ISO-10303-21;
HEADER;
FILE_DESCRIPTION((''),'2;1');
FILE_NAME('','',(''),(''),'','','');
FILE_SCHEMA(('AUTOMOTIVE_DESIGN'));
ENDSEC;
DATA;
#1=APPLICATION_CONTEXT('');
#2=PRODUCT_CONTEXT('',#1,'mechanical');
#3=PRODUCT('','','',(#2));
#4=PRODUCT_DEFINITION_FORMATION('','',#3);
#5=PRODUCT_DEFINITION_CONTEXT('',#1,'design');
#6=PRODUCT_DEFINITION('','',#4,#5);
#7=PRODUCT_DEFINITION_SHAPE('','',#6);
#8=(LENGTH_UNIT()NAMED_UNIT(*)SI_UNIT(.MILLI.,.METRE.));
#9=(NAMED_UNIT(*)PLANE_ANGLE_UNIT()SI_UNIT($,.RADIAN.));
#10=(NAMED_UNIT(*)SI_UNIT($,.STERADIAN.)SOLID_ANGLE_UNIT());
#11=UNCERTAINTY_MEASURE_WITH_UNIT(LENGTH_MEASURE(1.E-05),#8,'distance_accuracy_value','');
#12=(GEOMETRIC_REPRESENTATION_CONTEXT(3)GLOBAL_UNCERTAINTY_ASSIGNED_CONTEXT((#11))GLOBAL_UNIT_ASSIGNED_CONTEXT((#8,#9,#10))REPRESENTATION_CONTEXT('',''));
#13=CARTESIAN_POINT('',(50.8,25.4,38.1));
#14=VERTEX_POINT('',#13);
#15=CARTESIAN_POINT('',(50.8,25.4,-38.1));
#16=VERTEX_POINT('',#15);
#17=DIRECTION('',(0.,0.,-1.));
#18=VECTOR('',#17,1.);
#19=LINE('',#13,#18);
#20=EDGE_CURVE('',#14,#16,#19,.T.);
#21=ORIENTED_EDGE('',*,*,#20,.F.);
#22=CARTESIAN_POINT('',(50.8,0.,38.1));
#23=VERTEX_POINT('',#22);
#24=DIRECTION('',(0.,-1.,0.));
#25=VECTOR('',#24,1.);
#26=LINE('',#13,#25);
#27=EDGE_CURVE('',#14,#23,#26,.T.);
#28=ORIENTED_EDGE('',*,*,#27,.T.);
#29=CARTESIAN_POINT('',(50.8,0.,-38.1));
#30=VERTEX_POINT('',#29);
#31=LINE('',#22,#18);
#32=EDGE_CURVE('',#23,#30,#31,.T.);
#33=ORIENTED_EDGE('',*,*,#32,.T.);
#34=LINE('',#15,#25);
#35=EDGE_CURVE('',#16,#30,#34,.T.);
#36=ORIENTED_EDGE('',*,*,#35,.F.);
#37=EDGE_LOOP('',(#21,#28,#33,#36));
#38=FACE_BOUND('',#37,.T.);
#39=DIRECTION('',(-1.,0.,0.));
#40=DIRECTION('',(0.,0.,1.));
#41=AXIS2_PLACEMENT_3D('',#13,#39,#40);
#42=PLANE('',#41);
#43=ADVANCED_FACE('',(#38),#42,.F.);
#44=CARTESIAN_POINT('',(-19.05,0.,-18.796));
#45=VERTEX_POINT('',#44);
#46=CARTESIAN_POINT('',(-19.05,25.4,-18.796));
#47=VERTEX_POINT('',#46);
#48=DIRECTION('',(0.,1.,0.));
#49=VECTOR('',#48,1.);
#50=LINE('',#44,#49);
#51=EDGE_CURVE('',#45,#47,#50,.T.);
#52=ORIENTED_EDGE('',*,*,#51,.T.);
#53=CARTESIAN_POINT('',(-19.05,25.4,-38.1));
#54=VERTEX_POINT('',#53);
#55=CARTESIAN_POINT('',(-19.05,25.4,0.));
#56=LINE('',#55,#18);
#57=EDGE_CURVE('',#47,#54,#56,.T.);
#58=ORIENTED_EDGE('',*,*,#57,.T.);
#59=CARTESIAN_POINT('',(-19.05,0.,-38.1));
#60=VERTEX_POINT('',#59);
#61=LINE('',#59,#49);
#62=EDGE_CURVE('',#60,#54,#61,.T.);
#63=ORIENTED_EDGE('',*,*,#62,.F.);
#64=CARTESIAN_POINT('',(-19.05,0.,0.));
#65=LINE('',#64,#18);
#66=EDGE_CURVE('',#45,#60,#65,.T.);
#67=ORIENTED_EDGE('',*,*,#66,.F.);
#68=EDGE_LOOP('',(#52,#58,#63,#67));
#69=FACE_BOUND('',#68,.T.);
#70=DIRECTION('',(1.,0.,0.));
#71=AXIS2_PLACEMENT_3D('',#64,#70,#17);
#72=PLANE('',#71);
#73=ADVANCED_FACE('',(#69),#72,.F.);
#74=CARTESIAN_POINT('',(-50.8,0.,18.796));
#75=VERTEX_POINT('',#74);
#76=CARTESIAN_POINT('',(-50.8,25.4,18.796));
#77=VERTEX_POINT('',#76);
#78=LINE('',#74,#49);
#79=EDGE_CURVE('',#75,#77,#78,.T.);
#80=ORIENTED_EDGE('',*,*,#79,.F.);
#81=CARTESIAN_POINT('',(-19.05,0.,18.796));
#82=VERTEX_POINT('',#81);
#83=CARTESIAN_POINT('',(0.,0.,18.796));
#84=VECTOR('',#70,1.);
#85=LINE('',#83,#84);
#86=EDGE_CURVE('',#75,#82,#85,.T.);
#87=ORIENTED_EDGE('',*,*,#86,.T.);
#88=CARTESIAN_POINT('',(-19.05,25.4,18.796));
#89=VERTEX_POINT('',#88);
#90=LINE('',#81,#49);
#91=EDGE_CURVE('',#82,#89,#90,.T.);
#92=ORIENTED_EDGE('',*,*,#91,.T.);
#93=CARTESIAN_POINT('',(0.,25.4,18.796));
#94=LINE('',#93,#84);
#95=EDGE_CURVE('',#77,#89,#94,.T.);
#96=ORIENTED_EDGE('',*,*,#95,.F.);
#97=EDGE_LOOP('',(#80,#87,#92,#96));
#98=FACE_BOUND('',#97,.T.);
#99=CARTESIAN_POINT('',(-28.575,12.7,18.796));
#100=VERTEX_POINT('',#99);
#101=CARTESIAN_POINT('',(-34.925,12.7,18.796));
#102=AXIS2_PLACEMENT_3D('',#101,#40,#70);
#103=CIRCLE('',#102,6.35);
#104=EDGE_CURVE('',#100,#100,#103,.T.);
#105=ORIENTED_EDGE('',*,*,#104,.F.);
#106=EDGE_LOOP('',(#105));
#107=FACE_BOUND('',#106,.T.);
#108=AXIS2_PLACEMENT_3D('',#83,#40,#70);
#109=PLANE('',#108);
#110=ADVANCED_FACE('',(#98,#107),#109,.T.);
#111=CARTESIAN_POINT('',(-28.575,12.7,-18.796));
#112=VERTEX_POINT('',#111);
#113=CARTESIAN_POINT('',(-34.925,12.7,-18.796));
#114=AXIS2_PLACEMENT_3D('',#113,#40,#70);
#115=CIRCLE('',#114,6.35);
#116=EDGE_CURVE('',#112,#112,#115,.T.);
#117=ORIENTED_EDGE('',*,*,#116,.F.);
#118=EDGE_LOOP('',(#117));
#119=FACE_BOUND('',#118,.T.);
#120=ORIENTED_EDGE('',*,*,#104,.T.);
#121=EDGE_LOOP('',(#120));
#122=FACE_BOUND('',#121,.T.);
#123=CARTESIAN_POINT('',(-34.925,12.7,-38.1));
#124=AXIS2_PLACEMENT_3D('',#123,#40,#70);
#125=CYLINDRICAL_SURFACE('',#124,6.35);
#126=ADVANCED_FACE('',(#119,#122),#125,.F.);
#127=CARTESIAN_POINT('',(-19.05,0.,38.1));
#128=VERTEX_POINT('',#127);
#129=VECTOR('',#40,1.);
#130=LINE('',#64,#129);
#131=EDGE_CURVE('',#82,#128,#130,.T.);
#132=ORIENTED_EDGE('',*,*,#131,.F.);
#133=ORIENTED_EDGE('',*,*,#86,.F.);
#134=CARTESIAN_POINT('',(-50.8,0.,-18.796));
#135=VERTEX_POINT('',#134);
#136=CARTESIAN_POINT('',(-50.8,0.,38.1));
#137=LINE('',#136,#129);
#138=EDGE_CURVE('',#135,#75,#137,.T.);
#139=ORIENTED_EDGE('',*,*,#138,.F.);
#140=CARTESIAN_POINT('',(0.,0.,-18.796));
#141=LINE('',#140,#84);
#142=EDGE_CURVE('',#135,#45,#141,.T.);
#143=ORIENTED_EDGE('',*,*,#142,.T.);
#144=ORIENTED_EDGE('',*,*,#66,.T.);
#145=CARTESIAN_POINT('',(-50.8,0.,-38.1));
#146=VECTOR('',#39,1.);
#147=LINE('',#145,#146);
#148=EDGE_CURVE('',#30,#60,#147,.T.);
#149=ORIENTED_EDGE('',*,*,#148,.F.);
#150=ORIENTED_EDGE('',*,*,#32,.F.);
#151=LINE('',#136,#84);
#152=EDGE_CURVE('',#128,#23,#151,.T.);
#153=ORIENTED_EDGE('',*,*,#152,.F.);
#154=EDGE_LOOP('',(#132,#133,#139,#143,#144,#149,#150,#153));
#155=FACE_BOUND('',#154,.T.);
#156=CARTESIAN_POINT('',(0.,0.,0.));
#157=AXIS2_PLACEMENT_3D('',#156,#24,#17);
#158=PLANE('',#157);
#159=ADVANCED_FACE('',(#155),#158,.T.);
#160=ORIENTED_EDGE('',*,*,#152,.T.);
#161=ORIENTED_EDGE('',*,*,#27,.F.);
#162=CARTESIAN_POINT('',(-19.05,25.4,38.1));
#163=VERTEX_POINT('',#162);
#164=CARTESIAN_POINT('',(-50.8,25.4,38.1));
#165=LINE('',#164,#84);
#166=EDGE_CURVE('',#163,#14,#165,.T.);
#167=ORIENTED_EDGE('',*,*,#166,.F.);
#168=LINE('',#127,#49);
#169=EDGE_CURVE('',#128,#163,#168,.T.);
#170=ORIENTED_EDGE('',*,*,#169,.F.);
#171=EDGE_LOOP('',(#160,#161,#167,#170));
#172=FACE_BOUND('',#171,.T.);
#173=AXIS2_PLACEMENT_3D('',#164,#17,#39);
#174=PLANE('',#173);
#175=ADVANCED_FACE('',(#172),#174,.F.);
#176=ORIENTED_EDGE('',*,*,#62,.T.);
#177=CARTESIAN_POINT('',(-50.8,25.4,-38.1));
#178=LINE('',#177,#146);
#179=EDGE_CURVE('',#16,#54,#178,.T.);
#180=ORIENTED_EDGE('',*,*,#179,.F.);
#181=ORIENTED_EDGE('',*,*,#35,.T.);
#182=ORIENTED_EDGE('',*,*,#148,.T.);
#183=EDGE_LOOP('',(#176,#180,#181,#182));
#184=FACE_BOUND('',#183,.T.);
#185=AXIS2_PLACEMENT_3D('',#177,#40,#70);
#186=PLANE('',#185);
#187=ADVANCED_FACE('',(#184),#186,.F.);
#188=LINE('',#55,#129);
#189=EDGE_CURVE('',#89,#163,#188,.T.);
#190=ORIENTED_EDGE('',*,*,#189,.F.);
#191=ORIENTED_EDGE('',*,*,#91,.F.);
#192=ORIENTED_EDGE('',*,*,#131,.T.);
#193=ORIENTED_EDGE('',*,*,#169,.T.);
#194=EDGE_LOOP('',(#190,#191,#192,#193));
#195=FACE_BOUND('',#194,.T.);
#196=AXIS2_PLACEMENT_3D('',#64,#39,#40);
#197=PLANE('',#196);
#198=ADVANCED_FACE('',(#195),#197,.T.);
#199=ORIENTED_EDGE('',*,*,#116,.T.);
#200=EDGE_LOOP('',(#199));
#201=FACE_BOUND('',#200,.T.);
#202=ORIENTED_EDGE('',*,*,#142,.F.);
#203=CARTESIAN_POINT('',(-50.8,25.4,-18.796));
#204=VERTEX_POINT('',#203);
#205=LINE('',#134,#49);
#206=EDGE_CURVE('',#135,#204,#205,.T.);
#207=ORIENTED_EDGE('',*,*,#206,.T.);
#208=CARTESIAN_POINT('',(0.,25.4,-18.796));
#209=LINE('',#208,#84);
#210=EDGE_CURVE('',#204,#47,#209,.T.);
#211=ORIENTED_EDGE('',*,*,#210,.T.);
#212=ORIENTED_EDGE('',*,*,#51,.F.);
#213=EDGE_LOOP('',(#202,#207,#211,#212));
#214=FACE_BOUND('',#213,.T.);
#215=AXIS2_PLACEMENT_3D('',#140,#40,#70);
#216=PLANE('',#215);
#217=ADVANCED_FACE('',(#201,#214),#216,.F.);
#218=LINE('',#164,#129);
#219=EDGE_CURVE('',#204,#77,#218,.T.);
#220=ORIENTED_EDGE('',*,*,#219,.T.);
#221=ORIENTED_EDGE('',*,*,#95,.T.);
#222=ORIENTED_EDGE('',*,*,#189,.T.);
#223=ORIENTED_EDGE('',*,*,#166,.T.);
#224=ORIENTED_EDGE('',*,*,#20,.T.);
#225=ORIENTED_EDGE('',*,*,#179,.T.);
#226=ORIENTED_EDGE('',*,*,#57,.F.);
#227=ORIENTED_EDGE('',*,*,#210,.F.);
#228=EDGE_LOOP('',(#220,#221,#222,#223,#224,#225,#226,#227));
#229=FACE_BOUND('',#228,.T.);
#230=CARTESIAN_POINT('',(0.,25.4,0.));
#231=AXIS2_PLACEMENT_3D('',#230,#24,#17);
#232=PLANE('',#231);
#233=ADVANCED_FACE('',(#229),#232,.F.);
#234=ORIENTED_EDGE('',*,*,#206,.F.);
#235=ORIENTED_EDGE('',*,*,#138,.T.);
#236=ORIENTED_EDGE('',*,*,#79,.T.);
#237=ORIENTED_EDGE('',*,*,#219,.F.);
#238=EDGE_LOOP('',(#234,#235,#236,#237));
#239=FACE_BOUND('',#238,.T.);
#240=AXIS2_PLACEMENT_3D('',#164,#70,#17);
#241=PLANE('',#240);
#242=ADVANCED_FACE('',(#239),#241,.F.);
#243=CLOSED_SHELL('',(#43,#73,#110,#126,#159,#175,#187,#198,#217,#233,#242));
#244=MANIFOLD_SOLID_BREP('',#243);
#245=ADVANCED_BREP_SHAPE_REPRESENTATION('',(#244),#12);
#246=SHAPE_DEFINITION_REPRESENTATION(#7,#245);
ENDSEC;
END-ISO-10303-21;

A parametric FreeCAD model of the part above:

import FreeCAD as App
import Part
import Sketcher

V = App.Vector
Q = App.Units.Quantity


def add_polygon(sketch, points):
    """Adds a closed chain of lines whose ends are joined by coincident constraints."""
    first, n = sketch.GeometryCount, len(points)
    for a, b in zip(points, points[1:] + points[:1]):
        sketch.addGeometry(Part.LineSegment(App.Vector(*a, 0), App.Vector(*b, 0)), False)
    for i in range(n):
        sketch.addConstraint(Sketcher.Constraint("Coincident", first + i, 2, first + (i + 1) % n, 1))

doc = App.newDocument("Part")
body = doc.addObject("PartDesign::Body", "Body")

# Sketch on XZ plane
sketch1 = body.newObject("Sketcher::SketchObject", "Sketch")
sketch1.AttachmentSupport = (doc.getObject("XZ_Plane"), [""])
sketch1.MapMode = "FlatFace"
add_polygon(sketch1, [(-51, -38), (-51, 38), (51, 38), (51, -38)])  # lines 0-3
sketch1.addConstraint([
    Sketcher.Constraint("Vertical", 0),
    Sketcher.Constraint("Horizontal", 1),
    Sketcher.Constraint("Vertical", 2),
    Sketcher.Constraint("Horizontal", 3),
    Sketcher.Constraint("Symmetric", 0, 2, 2, 2, -1, 1),
    Sketcher.Constraint("DistanceX", 1, 1, 1, 2, Q("4 in")),
    Sketcher.Constraint("DistanceY", 0, 1, 0, 2, Q("3 in")),
])
pad1 = body.newObject("PartDesign::Pad", "Pad")
pad1.Profile = sketch1
pad1.Length = Q("1 in")
pad1.Reversed = True

# Sketch on XZ plane
sketch2 = body.newObject("Sketcher::SketchObject", "Sketch001")
sketch2.AttachmentSupport = (doc.getObject("XZ_Plane"), [""])
sketch2.MapMode = "FlatFace"
sketch2.AttachmentOffset = App.Placement(V(0, 0, -1 * 25.4), App.Rotation())
add_polygon(sketch2, [(-51, -38), (-51, -19), (-19, -19), (-19, -38)])  # lines 0-3
add_polygon(sketch2, [(-51, 19), (-51, 38), (-19, 38), (-19, 19)])  # lines 4-7
sketch2.addConstraint([
    Sketcher.Constraint("Vertical", 0),
    Sketcher.Constraint("Horizontal", 1),
    Sketcher.Constraint("Vertical", 2),
    Sketcher.Constraint("Horizontal", 3),
    Sketcher.Constraint("Vertical", 4),
    Sketcher.Constraint("Horizontal", 5),
    Sketcher.Constraint("Vertical", 6),
    Sketcher.Constraint("Horizontal", 7),
    Sketcher.Constraint("Symmetric", 3, 2, 4, 2, -1),
    Sketcher.Constraint("Symmetric", 1, 2, 6, 2, -1),
    Sketcher.Constraint("DistanceX", 0, 2, -1, 1, Q("2 in")),
    Sketcher.Constraint("DistanceY", 3, 2, 4, 2, Q("3 in")),
    Sketcher.Constraint("DistanceX", 1, 1, 1, 2, Q("1.25 in")),
    Sketcher.Constraint("DistanceY", 0, 1, 0, 2, Q("0.76 in")),
])
pocket1 = body.newObject("PartDesign::Pocket", "Pocket")
pocket1.Profile = sketch2
pocket1.Type = "ThroughAll"
pocket1.Reversed = True

# Sketch on XY plane
sketch3 = body.newObject("Sketcher::SketchObject", "Sketch002")
sketch3.AttachmentSupport = (doc.getObject("XY_Plane"), [""])
sketch3.MapMode = "FlatFace"
sketch3.AttachmentOffset = App.Placement(V(0, 0, 0.74 * 25.4), App.Rotation())
sketch3.addGeometry(Part.Circle(V(-35, 13, 0), V(0, 0, 1), 6), False)
sketch3.addConstraint([
    Sketcher.Constraint("Diameter", 0, Q("0.5 in")),
    Sketcher.Constraint("DistanceY", -1, 1, 0, 3, Q("0.5 in")),
    Sketcher.Constraint("DistanceX", 0, 3, -1, 1, Q("1.375 in")),
])
pocket2 = body.newObject("PartDesign::Pocket", "Pocket001")
pocket2.Profile = sketch3
pocket2.Type = "ThroughAll"

doc.recompute()
